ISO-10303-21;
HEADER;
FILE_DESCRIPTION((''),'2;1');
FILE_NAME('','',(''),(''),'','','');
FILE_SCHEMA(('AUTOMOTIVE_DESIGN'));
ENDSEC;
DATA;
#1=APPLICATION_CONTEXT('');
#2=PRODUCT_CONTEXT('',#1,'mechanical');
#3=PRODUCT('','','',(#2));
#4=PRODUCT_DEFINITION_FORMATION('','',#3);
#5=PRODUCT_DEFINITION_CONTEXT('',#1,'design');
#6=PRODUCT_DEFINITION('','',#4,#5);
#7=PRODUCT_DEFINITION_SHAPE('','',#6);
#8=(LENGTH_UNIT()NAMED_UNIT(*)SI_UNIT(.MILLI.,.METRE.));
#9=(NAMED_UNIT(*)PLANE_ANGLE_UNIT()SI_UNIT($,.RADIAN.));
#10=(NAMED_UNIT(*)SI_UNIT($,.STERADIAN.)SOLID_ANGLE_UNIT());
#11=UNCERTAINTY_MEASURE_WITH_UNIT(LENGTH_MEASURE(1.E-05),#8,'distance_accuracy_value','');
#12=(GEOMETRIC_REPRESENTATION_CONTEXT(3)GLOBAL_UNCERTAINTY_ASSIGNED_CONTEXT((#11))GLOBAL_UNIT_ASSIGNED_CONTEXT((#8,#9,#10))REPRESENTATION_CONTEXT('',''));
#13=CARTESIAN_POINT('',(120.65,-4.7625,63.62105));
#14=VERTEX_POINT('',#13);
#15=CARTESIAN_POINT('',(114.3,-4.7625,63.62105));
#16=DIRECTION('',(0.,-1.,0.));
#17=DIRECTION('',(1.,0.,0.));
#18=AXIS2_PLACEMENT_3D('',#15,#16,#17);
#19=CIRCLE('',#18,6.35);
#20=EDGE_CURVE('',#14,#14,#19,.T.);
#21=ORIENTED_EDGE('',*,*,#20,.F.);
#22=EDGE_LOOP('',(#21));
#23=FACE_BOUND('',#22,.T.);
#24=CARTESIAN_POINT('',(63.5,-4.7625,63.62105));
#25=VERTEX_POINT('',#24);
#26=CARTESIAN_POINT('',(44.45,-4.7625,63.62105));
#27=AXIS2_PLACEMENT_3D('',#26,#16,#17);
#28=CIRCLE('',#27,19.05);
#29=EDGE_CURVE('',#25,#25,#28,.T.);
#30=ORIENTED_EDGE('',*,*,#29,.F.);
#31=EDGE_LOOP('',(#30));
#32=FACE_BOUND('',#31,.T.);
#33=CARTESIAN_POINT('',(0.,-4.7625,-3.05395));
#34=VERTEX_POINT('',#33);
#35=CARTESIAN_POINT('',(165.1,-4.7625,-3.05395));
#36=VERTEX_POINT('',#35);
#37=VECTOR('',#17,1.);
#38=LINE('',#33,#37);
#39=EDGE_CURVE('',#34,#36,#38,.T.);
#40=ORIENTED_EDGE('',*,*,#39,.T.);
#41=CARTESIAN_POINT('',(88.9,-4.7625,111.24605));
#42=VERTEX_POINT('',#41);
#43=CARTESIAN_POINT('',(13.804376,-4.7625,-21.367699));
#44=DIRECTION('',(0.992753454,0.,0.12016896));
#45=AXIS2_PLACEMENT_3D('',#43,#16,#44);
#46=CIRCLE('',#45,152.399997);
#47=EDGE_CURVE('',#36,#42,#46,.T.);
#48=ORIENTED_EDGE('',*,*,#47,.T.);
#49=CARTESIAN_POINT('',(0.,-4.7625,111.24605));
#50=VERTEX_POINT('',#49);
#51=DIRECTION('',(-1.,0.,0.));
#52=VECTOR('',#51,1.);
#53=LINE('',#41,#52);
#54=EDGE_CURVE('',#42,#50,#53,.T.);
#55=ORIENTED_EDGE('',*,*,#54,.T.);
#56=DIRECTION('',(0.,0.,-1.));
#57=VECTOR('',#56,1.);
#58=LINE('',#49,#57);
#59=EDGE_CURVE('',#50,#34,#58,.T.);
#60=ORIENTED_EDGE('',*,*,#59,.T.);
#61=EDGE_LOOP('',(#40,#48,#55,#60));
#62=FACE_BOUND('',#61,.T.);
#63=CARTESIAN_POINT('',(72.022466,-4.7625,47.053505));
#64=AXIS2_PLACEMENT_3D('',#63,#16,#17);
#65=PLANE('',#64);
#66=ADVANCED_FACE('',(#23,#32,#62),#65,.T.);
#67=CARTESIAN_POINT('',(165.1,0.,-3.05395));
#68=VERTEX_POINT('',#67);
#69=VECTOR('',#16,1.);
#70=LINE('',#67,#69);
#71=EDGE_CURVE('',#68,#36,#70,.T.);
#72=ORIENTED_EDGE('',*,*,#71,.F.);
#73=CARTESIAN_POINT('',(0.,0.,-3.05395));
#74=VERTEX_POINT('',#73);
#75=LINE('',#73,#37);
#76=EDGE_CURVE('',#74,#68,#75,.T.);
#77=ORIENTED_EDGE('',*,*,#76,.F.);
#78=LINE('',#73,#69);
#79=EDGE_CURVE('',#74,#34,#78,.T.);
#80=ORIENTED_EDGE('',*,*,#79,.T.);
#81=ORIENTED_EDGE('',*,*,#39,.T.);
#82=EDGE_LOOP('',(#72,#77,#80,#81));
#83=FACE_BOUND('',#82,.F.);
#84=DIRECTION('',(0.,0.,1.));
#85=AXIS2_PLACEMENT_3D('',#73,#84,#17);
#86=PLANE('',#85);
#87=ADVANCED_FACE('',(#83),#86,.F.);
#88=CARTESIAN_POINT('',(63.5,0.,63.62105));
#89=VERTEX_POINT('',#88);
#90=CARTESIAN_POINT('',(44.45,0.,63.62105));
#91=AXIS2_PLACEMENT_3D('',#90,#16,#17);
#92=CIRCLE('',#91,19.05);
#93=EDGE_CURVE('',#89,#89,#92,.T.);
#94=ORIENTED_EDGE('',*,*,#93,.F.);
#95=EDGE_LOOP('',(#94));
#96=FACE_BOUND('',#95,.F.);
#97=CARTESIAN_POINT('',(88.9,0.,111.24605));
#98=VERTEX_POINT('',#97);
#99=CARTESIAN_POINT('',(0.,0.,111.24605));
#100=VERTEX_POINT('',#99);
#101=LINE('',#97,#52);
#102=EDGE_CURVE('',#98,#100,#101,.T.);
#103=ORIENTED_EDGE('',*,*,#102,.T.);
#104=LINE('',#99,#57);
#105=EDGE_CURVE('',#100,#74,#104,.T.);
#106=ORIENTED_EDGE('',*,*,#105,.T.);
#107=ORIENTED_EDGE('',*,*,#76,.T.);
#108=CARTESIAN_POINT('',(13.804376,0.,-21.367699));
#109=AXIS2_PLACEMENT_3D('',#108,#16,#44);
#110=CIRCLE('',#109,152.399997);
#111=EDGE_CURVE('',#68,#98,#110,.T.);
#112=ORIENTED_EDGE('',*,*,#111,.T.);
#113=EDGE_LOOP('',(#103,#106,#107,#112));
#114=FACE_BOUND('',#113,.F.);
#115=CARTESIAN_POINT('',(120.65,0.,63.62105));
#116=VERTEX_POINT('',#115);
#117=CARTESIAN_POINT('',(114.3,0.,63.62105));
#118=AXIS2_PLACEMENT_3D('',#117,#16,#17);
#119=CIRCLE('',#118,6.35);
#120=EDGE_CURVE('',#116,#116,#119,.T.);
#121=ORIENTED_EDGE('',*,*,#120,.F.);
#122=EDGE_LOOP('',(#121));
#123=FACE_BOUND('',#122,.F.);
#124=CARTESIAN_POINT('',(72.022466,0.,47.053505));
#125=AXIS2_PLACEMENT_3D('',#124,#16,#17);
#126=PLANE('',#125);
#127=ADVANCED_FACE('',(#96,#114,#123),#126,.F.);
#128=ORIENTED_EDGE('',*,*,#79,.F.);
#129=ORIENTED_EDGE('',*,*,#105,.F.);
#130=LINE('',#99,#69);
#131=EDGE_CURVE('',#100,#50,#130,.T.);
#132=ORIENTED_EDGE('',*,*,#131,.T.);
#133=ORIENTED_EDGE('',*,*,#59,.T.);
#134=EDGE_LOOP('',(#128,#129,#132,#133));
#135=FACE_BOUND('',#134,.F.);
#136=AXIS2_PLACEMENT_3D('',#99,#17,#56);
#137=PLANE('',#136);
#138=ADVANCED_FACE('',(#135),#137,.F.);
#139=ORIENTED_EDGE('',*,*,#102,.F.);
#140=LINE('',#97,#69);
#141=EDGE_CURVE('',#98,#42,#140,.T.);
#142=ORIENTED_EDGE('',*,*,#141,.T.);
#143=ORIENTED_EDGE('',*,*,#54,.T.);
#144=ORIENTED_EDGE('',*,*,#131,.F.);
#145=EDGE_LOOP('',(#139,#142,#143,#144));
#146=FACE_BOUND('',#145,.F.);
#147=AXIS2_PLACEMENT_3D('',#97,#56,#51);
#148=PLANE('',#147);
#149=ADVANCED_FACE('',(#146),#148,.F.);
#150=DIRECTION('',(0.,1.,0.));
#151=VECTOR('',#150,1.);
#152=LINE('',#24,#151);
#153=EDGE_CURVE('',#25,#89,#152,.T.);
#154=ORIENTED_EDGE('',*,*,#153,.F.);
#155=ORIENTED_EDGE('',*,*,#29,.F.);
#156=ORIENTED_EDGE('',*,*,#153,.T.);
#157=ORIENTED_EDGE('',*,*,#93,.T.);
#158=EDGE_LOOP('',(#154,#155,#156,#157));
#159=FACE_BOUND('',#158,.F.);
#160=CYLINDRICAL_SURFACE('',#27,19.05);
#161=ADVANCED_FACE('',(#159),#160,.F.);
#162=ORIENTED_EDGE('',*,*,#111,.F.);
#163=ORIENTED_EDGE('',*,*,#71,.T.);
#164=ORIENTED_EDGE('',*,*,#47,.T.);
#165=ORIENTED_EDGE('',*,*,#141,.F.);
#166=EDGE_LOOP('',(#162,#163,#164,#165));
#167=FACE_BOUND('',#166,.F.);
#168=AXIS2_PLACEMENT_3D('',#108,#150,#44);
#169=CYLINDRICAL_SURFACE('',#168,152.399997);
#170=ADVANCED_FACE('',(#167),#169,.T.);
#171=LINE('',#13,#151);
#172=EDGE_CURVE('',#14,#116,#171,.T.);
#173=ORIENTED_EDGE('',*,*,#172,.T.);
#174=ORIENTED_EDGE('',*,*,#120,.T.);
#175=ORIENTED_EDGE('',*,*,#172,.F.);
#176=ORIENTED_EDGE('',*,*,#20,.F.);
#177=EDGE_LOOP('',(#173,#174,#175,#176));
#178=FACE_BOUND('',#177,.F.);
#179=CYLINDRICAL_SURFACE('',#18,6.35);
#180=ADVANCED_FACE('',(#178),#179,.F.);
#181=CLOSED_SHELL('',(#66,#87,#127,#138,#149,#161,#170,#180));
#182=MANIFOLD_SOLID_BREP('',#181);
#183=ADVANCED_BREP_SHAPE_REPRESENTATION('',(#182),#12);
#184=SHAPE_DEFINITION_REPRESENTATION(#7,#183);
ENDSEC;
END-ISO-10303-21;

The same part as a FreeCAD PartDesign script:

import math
import FreeCAD as App
import Part
import Sketcher
from FreeCAD import Vector
Q = App.Units.Quantity

doc = App.newDocument("Part")
params = doc.addObject("Spreadsheet::Sheet", "Params")
for row, (alias, value) in enumerate([
    ("sketch1_radius", "5.9999999 in"),
    ("sketch1_width", "6.5 in"),
    ("sketch1_width2", "3.5 in"),
    ("sketch1_height", "4.5 in"),
    ("pad1_length", "0.1875 in"),
    ("sketch2_diameter", "1.5 in"),
    ("sketch2_diameter2", "0.5 in"),
], start=1):
    params.set(f"A{row}", alias)
    params.set(f"B{row}", "=" + value)
    params.setAlias(f"B{row}", alias)

body = doc.addObject("PartDesign::Body", "Body")

# Sketch on XZ plane
sketch1 = doc.addObject("Sketcher::SketchObject", "Sketch")
body.addObject(sketch1)
sketch1.AttachmentSupport = (doc.XZ_Plane, [""])
sketch1.MapMode = "FlatFace"
sketch1.addGeometry([
    Part.LineSegment(Vector(0, 111, 0), Vector(0, -3, 0)),
    Part.LineSegment(Vector(0, -3, 0), Vector(165, -3, 0)),
    Part.ArcOfCircle(Part.Circle(Vector(14, -21, 0), Vector(0, 0, 1), 152), math.radians(7), math.radians(60)),
    Part.LineSegment(Vector(89, 111, 0), Vector(0, 111, 0)),
], False)
sketch1.addConstraint([
    Sketcher.Constraint("Coincident", 0, 2, 1, 1),
    Sketcher.Constraint("Coincident", 1, 2, 2, 1),
    Sketcher.Constraint("Coincident", 2, 2, 3, 1),
    Sketcher.Constraint("Coincident", 3, 2, 0, 1),
    Sketcher.Constraint("Vertical", 0),
    Sketcher.Constraint("Horizontal", 1),
    Sketcher.Constraint("Horizontal", 3),
    Sketcher.Constraint("PointOnObject", 0, 2, -2),
    Sketcher.Constraint("Radius", 2, Q("5.9999999 in")),
    Sketcher.Constraint("DistanceX", 1, 1, 1, 2, Q("6.5 in")),
    Sketcher.Constraint("DistanceX", 3, 2, 3, 1, Q("3.5 in")),
    Sketcher.Constraint("DistanceY", 0, 2, 0, 1, Q("4.5 in")),
    Sketcher.Constraint("DistanceY", 2, 3, -1, 1, 21.367699),
])
sketch1.setExpression("Constraints[8]", "Params.sketch1_radius")
sketch1.setExpression("Constraints[9]", "Params.sketch1_width")
sketch1.setExpression("Constraints[10]", "Params.sketch1_width2")
sketch1.setExpression("Constraints[11]", "Params.sketch1_height")
pad1 = doc.addObject("PartDesign::Pad", "Pad")
body.addObject(pad1)
pad1.Profile = sketch1
pad1.setExpression("Length", "Params.pad1_length")

# Sketch on XZ plane
sketch2 = doc.addObject("Sketcher::SketchObject", "Sketch001")
body.addObject(sketch2)
sketch2.AttachmentSupport = (doc.XZ_Plane, [""])
sketch2.MapMode = "FlatFace"
sketch2.AttachmentOffset = App.Placement(Vector(0, 0, 0.1875 * 25.4), App.Rotation())
sketch2.addGeometry([
    Part.Circle(Vector(44, 64, 0), Vector(0, 0, 1), 19),
    Part.Circle(Vector(114, 64, 0), Vector(0, 0, 1), 6),
], False)
sketch2.addConstraint([
    Sketcher.Constraint("Horizontal", 0, 3, 1, 3),
    Sketcher.Constraint("Diameter", 0, Q("1.5 in")),
    Sketcher.Constraint("Diameter", 1, Q("0.5 in")),
    Sketcher.Constraint("DistanceX", -1, 1, 1, 3, Q("4.5 in")),
    Sketcher.Constraint("DistanceX", -1, 1, 0, 3, Q("1.75 in")),
    Sketcher.Constraint("DistanceY", -1, 1, 0, 3, 63.62105),
])
sketch2.setExpression("Constraints[1]", "Params.sketch2_diameter")
sketch2.setExpression("Constraints[2]", "Params.sketch2_diameter2")
pocket1 = doc.addObject("PartDesign::Pocket", "Pocket")
body.addObject(pocket1)
pocket1.Profile = sketch2
pocket1.Type = "ThroughAll"

doc.recompute()
